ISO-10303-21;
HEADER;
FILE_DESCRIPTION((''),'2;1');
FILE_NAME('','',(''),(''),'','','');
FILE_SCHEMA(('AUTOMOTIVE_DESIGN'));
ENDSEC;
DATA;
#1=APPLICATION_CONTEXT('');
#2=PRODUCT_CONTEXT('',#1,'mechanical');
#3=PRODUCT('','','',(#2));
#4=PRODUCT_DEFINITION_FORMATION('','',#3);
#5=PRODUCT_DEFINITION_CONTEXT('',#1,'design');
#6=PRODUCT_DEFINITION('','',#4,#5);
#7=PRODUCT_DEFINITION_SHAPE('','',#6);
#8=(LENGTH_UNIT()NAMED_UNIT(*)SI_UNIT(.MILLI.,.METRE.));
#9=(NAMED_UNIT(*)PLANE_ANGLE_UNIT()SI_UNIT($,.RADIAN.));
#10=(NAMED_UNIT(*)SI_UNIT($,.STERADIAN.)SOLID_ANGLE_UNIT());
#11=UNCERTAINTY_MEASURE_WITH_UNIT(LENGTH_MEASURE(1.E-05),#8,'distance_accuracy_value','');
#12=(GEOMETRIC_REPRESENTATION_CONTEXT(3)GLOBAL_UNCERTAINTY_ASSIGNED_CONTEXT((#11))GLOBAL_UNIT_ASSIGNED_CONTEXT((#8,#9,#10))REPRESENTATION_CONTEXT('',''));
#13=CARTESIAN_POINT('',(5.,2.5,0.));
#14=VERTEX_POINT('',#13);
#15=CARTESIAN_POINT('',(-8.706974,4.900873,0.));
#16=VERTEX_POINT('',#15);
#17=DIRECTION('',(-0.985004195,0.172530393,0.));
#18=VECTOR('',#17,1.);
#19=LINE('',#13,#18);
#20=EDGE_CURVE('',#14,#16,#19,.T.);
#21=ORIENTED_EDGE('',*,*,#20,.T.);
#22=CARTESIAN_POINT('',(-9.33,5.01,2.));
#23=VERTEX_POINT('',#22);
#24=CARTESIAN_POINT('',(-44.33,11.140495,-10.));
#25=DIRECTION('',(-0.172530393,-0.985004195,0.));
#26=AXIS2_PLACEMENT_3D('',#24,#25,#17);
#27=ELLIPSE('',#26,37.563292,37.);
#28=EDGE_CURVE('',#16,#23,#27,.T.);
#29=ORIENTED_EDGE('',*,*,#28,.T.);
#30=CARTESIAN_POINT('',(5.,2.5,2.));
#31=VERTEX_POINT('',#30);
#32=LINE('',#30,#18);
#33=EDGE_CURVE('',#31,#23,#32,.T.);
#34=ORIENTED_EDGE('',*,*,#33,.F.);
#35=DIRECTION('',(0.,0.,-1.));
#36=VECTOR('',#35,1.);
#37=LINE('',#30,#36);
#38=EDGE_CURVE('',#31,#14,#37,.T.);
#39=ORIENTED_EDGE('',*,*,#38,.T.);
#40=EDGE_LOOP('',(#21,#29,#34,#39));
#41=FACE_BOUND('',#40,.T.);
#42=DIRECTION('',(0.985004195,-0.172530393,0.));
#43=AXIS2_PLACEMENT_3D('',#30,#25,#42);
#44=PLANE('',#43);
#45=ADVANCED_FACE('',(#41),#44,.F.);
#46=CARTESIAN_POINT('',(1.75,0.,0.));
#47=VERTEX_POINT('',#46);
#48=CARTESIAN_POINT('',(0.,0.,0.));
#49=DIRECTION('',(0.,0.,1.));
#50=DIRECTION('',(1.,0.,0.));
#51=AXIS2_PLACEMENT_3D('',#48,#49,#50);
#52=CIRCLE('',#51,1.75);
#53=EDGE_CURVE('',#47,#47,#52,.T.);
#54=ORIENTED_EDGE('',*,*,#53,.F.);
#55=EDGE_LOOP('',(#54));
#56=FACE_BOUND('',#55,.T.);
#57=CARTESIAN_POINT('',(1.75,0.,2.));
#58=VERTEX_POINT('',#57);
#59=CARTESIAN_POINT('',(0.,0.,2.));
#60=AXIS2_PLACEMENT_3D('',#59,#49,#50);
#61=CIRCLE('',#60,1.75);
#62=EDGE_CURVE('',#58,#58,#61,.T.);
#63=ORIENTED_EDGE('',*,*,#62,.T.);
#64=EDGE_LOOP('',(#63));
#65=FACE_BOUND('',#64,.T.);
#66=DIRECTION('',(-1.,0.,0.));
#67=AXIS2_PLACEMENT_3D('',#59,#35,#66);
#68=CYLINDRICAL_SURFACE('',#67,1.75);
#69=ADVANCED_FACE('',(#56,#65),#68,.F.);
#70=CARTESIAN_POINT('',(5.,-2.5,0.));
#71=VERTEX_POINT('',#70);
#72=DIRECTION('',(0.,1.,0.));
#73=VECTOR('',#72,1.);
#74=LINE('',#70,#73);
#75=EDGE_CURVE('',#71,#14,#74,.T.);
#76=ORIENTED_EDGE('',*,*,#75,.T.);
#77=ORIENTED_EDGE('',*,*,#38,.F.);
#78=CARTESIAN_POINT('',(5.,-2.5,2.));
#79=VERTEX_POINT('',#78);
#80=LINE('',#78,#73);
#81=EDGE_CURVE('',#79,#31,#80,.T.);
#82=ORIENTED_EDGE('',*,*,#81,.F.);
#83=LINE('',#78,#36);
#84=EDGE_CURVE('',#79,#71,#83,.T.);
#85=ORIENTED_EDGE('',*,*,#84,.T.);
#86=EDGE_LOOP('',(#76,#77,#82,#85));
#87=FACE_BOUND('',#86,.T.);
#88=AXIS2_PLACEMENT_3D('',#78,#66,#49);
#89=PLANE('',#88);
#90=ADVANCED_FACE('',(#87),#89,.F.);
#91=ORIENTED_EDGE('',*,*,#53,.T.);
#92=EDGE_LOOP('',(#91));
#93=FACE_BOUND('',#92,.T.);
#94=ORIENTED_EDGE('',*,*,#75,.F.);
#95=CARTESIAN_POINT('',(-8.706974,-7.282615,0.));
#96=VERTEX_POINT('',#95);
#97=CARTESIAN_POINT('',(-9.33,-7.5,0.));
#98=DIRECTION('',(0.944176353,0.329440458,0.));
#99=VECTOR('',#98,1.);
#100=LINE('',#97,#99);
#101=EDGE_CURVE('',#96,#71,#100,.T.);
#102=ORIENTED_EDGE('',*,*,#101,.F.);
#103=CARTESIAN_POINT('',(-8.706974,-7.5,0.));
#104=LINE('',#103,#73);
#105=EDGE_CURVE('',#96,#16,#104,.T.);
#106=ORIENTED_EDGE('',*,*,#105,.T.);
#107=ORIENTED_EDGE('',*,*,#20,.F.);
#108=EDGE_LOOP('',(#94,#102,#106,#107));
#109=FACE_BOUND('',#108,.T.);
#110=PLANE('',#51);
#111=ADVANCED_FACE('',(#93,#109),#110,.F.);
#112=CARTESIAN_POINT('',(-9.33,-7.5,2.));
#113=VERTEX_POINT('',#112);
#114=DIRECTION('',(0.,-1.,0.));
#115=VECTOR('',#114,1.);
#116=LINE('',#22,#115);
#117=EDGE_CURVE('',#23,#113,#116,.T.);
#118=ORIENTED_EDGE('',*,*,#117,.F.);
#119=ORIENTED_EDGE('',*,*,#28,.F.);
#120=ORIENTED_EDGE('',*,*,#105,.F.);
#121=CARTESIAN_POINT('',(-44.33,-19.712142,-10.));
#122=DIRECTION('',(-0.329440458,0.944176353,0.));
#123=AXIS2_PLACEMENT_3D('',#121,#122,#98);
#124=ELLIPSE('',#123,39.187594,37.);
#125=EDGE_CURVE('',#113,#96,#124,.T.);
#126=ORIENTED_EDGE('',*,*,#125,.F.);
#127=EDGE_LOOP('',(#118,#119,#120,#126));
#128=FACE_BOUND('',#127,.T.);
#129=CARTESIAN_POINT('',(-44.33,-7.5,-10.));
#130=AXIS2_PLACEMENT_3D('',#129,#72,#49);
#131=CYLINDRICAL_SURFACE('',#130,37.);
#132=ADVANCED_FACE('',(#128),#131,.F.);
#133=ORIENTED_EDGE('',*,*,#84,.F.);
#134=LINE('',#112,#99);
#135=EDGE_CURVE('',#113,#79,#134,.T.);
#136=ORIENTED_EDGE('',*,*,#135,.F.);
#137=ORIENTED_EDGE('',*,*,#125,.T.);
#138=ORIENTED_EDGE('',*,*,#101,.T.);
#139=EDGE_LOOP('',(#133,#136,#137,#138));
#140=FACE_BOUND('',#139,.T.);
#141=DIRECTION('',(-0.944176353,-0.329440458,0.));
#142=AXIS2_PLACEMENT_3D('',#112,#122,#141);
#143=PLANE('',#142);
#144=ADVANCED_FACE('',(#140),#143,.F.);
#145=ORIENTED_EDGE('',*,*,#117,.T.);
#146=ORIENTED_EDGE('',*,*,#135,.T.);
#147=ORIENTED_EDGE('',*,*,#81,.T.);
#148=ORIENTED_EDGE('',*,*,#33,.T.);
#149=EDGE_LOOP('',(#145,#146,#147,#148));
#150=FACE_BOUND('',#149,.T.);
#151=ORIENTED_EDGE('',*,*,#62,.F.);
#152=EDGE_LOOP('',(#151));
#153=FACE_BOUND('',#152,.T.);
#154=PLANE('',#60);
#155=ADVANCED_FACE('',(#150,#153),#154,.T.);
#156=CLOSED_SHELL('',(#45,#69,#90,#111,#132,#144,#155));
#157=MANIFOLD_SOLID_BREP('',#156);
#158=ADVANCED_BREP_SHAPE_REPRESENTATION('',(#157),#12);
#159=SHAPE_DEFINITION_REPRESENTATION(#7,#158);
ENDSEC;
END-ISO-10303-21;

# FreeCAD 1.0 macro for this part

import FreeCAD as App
import Part
import Sketcher

V = App.Vector

doc = App.newDocument("Part")
body = doc.addObject("PartDesign::Body", "Body")

# Sketch on XY plane
sketch1 = doc.addObject("Sketcher::SketchObject", "Sketch")
body.addObject(sketch1)
sketch1.AttachmentSupport = (doc.XY_Plane, [""])
sketch1.MapMode = "FlatFace"
sketch1.addGeometry([
    Part.LineSegment(V(-9.3, 5, 0), V(-9.3, -7.5, 0)),  # 0
    Part.LineSegment(V(-9.3, -7.5, 0), V(5, -2.5, 0)),  # 1
    Part.LineSegment(V(5, -2.5, 0), V(5, 2.5, 0)),  # 2
    Part.LineSegment(V(5, 2.5, 0), V(-9.3, 5, 0)),  # 3
    Part.Circle(V(0, 0, 0), V(0, 0, 1), 1.8),  # 4
], False)
sketch1.addConstraint([
    Sketcher.Constraint("Coincident", 0, 2, 1, 1),
    Sketcher.Constraint("Coincident", 1, 2, 2, 1),
    Sketcher.Constraint("Coincident", 2, 2, 3, 1),
    Sketcher.Constraint("Coincident", 3, 2, 0, 1),
    Sketcher.Constraint("Vertical", 0),
    Sketcher.Constraint("Vertical", 2),
    Sketcher.Constraint("Coincident", 4, 3, -1, 1),
    Sketcher.Constraint("Diameter", 4, 3.5),
    Sketcher.Constraint("DistanceY", 2, 1, 2, 2, 5.0),
    Sketcher.Constraint("DistanceX", -1, 1, 1, 2, 5.0),
    Sketcher.Constraint("DistanceY", 0, 2, 1, 2, 5.0),
    Sketcher.Constraint("DistanceY", 0, 2, 0, 1, 12.51),
    Sketcher.Constraint("DistanceY", 0, 2, -1, 1, 7.5),
    Sketcher.Constraint("DistanceX", 0, 2, -1, 1, 9.33),
])
pad1 = doc.addObject("PartDesign::Pad", "Pad")
body.addObject(pad1)
pad1.Profile = sketch1
pad1.Length = 2

# Sketch on XZ plane
sketch2 = doc.addObject("Sketcher::SketchObject", "Sketch001")
body.addObject(sketch2)
sketch2.AttachmentSupport = (doc.XZ_Plane, [""])
sketch2.MapMode = "FlatFace"
sketch2.addGeometry(Part.Circle(V(-44, -10, 0), V(0, 0, 1), 37), False)
sketch2.addConstraint([
    Sketcher.Constraint("Diameter", 0, 74.0),
    Sketcher.Constraint("DistanceY", 0, 3, -1, 1, 10.0),
    Sketcher.Constraint("DistanceX", 0, 3, -1, 1, 44.33),
])
pocket1 = doc.addObject("PartDesign::Pocket", "Pocket")
body.addObject(pocket1)
pocket1.Profile = sketch2
pocket1.Type = "ThroughAll"
pocket1.Midplane = True

doc.recompute()
